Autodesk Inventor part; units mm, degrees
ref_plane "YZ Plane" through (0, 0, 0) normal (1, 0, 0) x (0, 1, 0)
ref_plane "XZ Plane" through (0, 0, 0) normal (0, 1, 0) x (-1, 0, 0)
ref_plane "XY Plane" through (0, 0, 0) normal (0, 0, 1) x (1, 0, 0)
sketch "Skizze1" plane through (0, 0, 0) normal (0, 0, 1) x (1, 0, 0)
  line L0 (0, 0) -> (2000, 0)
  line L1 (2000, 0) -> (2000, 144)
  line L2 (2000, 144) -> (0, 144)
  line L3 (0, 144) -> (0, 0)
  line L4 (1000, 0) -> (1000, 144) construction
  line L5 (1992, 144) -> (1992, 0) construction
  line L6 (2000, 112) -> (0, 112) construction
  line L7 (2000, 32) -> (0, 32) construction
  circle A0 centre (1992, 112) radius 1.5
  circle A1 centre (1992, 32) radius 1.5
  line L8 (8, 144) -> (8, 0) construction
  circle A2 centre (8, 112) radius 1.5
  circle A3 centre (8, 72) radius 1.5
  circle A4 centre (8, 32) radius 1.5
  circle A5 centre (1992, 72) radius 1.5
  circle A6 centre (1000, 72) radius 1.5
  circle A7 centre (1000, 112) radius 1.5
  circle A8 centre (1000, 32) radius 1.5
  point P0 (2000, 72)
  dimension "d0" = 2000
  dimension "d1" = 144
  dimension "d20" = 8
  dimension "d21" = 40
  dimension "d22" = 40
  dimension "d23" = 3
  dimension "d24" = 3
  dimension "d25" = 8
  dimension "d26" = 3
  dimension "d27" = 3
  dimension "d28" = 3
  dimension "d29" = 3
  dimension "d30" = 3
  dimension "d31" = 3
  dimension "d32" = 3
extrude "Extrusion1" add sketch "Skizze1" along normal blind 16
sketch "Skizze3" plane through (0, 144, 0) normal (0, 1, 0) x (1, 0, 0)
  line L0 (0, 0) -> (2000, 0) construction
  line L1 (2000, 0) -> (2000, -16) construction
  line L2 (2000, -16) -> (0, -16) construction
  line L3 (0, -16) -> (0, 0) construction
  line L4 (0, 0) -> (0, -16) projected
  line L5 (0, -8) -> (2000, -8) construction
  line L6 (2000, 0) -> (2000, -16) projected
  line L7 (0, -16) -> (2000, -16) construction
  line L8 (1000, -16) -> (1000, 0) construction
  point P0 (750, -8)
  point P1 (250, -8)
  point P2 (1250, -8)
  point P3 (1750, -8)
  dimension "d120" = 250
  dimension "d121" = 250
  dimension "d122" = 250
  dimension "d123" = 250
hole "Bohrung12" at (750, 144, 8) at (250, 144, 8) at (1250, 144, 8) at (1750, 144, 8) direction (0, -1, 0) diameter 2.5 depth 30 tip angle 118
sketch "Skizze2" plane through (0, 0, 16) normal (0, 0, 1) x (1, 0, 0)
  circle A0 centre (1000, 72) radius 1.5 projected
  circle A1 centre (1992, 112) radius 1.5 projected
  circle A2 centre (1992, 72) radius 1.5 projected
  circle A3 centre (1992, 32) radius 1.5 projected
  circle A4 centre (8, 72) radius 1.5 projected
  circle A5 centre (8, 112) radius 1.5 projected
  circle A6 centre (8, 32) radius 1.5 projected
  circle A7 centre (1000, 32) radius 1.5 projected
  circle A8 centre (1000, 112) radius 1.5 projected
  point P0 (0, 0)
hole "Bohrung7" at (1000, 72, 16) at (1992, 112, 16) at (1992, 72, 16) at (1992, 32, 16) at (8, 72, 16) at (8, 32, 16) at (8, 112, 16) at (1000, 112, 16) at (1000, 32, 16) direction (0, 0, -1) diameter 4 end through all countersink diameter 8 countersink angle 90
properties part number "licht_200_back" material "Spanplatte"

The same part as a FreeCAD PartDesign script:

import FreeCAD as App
import Part
import Sketcher
Q = App.Units.Quantity

doc = App.newDocument("Part")
body = doc.addObject("PartDesign::Body", "Body")

# Sketch on XY plane
sketch1 = body.newObject("Sketcher::SketchObject", "Sketch")
sketch1.AttachmentSupport = (doc.getObject("XY_Plane"), [""])
sketch1.MapMode = "FlatFace"
sketch1.addGeometry(Part.LineSegment(App.Vector(0, 144, 0), App.Vector(0, 0, 0)), False)
sketch1.addGeometry(Part.LineSegment(App.Vector(0, 0, 0), App.Vector(2000, 0, 0)), False)
sketch1.addGeometry(Part.LineSegment(App.Vector(2000, 0, 0), App.Vector(2000, 144, 0)), False)
sketch1.addGeometry(Part.LineSegment(App.Vector(2000, 144, 0), App.Vector(0, 144, 0)), False)
sketch1.addGeometry(Part.Circle(App.Vector(8, 32, 0), App.Vector(0, 0, 1), 1.5), False)
sketch1.addGeometry(Part.Circle(App.Vector(1000, 32, 0), App.Vector(0, 0, 1), 1.5), False)
sketch1.addGeometry(Part.Circle(App.Vector(1992, 32, 0), App.Vector(0, 0, 1), 1.5), False)
sketch1.addGeometry(Part.Circle(App.Vector(8, 72, 0), App.Vector(0, 0, 1), 1.5), False)
sketch1.addGeometry(Part.Circle(App.Vector(8, 112, 0), App.Vector(0, 0, 1), 1.5), False)
sketch1.addGeometry(Part.Circle(App.Vector(1000, 72, 0), App.Vector(0, 0, 1), 1.5), False)
sketch1.addGeometry(Part.Circle(App.Vector(1992, 72, 0), App.Vector(0, 0, 1), 1.5), False)
sketch1.addGeometry(Part.Circle(App.Vector(1000, 112, 0), App.Vector(0, 0, 1), 1.5), False)
sketch1.addGeometry(Part.Circle(App.Vector(1992, 112, 0), App.Vector(0, 0, 1), 1.5), False)
sketch1.addConstraint(Sketcher.Constraint("Coincident", 0, 2, 1, 1))
sketch1.addConstraint(Sketcher.Constraint("Coincident", 1, 2, 2, 1))
sketch1.addConstraint(Sketcher.Constraint("Coincident", 2, 2, 3, 1))
sketch1.addConstraint(Sketcher.Constraint("Coincident", 3, 2, 0, 1))
sketch1.addConstraint(Sketcher.Constraint("Vertical", 0))
sketch1.addConstraint(Sketcher.Constraint("Horizontal", 1))
sketch1.addConstraint(Sketcher.Constraint("Vertical", 2))
sketch1.addConstraint(Sketcher.Constraint("Horizontal", 3))
sketch1.addConstraint(Sketcher.Constraint("Coincident", 0, 2, -1, 1))
sketch1.addConstraint(Sketcher.Constraint("Equal", 4, 5))
sketch1.addConstraint(Sketcher.Constraint("Equal", 5, 6))
sketch1.addConstraint(Sketcher.Constraint("Equal", 6, 7))
sketch1.addConstraint(Sketcher.Constraint("Equal", 7, 8))
sketch1.addConstraint(Sketcher.Constraint("Equal", 8, 9))
sketch1.addConstraint(Sketcher.Constraint("Equal", 9, 10))
sketch1.addConstraint(Sketcher.Constraint("Equal", 10, 11))
sketch1.addConstraint(Sketcher.Constraint("Equal", 11, 12))
sketch1.addConstraint(Sketcher.Constraint("Horizontal", 4, 3, 5, 3))
sketch1.addConstraint(Sketcher.Constraint("Horizontal", 5, 3, 6, 3))
sketch1.addConstraint(Sketcher.Constraint("Horizontal", 7, 3, 9, 3))
sketch1.addConstraint(Sketcher.Constraint("Horizontal", 9, 3, 10, 3))
sketch1.addConstraint(Sketcher.Constraint("Horizontal", 8, 3, 11, 3))
sketch1.addConstraint(Sketcher.Constraint("Horizontal", 11, 3, 12, 3))
sketch1.addConstraint(Sketcher.Constraint("Vertical", 4, 3, 7, 3))
sketch1.addConstraint(Sketcher.Constraint("Vertical", 7, 3, 8, 3))
sketch1.addConstraint(Sketcher.Constraint("Vertical", 5, 3, 9, 3))
sketch1.addConstraint(Sketcher.Constraint("Vertical", 6, 3, 10, 3))
sketch1.addConstraint(Sketcher.Constraint("Vertical", 9, 3, 11, 3))
sketch1.addConstraint(Sketcher.Constraint("Vertical", 10, 3, 12, 3))
sketch1.addConstraint(Sketcher.Constraint("Diameter", 4, Q("3 mm")))
sketch1.addConstraint(Sketcher.Constraint("DistanceX", 1, 1, 1, 2, Q("2000 mm")))
sketch1.addConstraint(Sketcher.Constraint("DistanceY", 0, 2, 0, 1, Q("144 mm")))
sketch1.addConstraint(Sketcher.Constraint("DistanceX", -1, 1, 4, 3, Q("8 mm")))
sketch1.addConstraint(Sketcher.Constraint("DistanceY", 4, 3, 7, 3, Q("40 mm")))
sketch1.addConstraint(Sketcher.Constraint("DistanceY", 7, 3, 8, 3, Q("40 mm")))
sketch1.addConstraint(Sketcher.Constraint("DistanceX", 6, 3, 1, 2, Q("8 mm")))
sketch1.addConstraint(Sketcher.Constraint("DistanceY", -1, 1, 4, 3, Q("32 mm")))
sketch1.addConstraint(Sketcher.Constraint("DistanceX", -1, 1, 5, 3, Q("1000 mm")))
pad1 = body.newObject("PartDesign::Pad", "Pad")
pad1.Profile = sketch1
pad1.Length = 16

# Sketch on XZ plane
sketch2 = body.newObject("Sketcher::SketchObject", "Sketch001")
sketch2.AttachmentSupport = (doc.getObject("XZ_Plane"), [""])
sketch2.MapMode = "FlatFace"
sketch2.AttachmentOffset = App.Placement(App.Vector(0, 0, -144), App.Rotation())
sketch2.addGeometry(Part.Circle(App.Vector(750, 8, 0), App.Vector(0, 0, 1), 1.25), False)
sketch2.addGeometry(Part.Circle(App.Vector(250, 8, 0), App.Vector(0, 0, 1), 1.25), False)
sketch2.addGeometry(Part.Circle(App.Vector(1250, 8, 0), App.Vector(0, 0, 1), 1.25), False)
sketch2.addGeometry(Part.Circle(App.Vector(1750, 8, 0), App.Vector(0, 0, 1), 1.25), False)
sketch2.addConstraint(Sketcher.Constraint("Equal", 0, 1))
sketch2.addConstraint(Sketcher.Constraint("Equal", 1, 2))
sketch2.addConstraint(Sketcher.Constraint("Equal", 2, 3))
sketch2.addConstraint(Sketcher.Constraint("Horizontal", 0, 3, 1, 3))
sketch2.addConstraint(Sketcher.Constraint("Horizontal", 1, 3, 2, 3))
sketch2.addConstraint(Sketcher.Constraint("Horizontal", 2, 3, 3, 3))
sketch2.addConstraint(Sketcher.Constraint("Diameter", 0, Q("2.5 mm")))
sketch2.addConstraint(Sketcher.Constraint("DistanceX", -1, 1, 0, 3, Q("750 mm")))
sketch2.addConstraint(Sketcher.Constraint("DistanceY", -1, 1, 0, 3, Q("8 mm")))
sketch2.addConstraint(Sketcher.Constraint("DistanceX", -1, 1, 1, 3, Q("250 mm")))
sketch2.addConstraint(Sketcher.Constraint("DistanceX", -1, 1, 2, 3, Q("1250 mm")))
sketch2.addConstraint(Sketcher.Constraint("DistanceX", -1, 1, 3, 3, Q("1750 mm")))
doc.recompute()
hole = body.newObject("PartDesign::Hole", "Hole")
hole.Profile = sketch2
hole.ThreadType = "None"
hole.Diameter = 2.5
hole.DepthType = "Dimension"
hole.Depth = 30
hole.DrillPoint = "Angled"
hole.DrillPointAngle = 118
hole.Reversed = True

# Sketch on XY plane
sketch3 = body.newObject("Sketcher::SketchObject", "Sketch002")
sketch3.AttachmentSupport = (doc.getObject("XY_Plane"), [""])
sketch3.MapMode = "FlatFace"
sketch3.AttachmentOffset = App.Placement(App.Vector(0, 0, 16), App.Rotation())
sketch3.addGeometry(Part.Circle(App.Vector(1000, 72, 0), App.Vector(0, 0, 1), 2), False)
sketch3.addGeometry(Part.Circle(App.Vector(1992, 112, 0), App.Vector(0, 0, 1), 2), False)
sketch3.addGeometry(Part.Circle(App.Vector(1992, 72, 0), App.Vector(0, 0, 1), 2), False)
sketch3.addGeometry(Part.Circle(App.Vector(1992, 32, 0), App.Vector(0, 0, 1), 2), False)
sketch3.addGeometry(Part.Circle(App.Vector(8, 72, 0), App.Vector(0, 0, 1), 2), False)
sketch3.addGeometry(Part.Circle(App.Vector(8, 32, 0), App.Vector(0, 0, 1), 2), False)
sketch3.addGeometry(Part.Circle(App.Vector(8, 112, 0), App.Vector(0, 0, 1), 2), False)
sketch3.addGeometry(Part.Circle(App.Vector(1000, 112, 0), App.Vector(0, 0, 1), 2), False)
sketch3.addGeometry(Part.Circle(App.Vector(1000, 32, 0), App.Vector(0, 0, 1), 2), False)
sketch3.addConstraint(Sketcher.Constraint("Equal", 0, 1))
sketch3.addConstraint(Sketcher.Constraint("Equal", 1, 2))
sketch3.addConstraint(Sketcher.Constraint("Equal", 2, 3))
sketch3.addConstraint(Sketcher.Constraint("Equal", 3, 4))
sketch3.addConstraint(Sketcher.Constraint("Equal", 4, 5))
sketch3.addConstraint(Sketcher.Constraint("Equal", 5, 6))
sketch3.addConstraint(Sketcher.Constraint("Equal", 6, 7))
sketch3.addConstraint(Sketcher.Constraint("Equal", 7, 8))
sketch3.addConstraint(Sketcher.Constraint("Horizontal", 0, 3, 2, 3))
sketch3.addConstraint(Sketcher.Constraint("Horizontal", 2, 3, 4, 3))
sketch3.addConstraint(Sketcher.Constraint("Horizontal", 3, 3, 5, 3))
sketch3.addConstraint(Sketcher.Constraint("Horizontal", 1, 3, 6, 3))
sketch3.addConstraint(Sketcher.Constraint("Horizontal", 6, 3, 7, 3))
sketch3.addConstraint(Sketcher.Constraint("Horizontal", 5, 3, 8, 3))
sketch3.addConstraint(Sketcher.Constraint("Vertical", 1, 3, 2, 3))
sketch3.addConstraint(Sketcher.Constraint("Vertical", 2, 3, 3, 3))
sketch3.addConstraint(Sketcher.Constraint("Vertical", 4, 3, 5, 3))
sketch3.addConstraint(Sketcher.Constraint("Vertical", 5, 3, 6, 3))
sketch3.addConstraint(Sketcher.Constraint("Vertical", 0, 3, 7, 3))
sketch3.addConstraint(Sketcher.Constraint("Vertical", 7, 3, 8, 3))
sketch3.addConstraint(Sketcher.Constraint("Diameter", 0, Q("4 mm")))
sketch3.addConstraint(Sketcher.Constraint("DistanceX", -1, 1, 0, 3, Q("1000 mm")))
sketch3.addConstraint(Sketcher.Constraint("DistanceY", -1, 1, 0, 3, Q("72 mm")))
sketch3.addConstraint(Sketcher.Constraint("DistanceX", -1, 1, 1, 3, Q("1992 mm")))
sketch3.addConstraint(Sketcher.Constraint("DistanceY", -1, 1, 1, 3, Q("112 mm")))
sketch3.addConstraint(Sketcher.Constraint("DistanceY", -1, 1, 3, 3, Q("32 mm")))
sketch3.addConstraint(Sketcher.Constraint("DistanceX", -1, 1, 4, 3, Q("8 mm")))
doc.recompute()
hole2 = body.newObject("PartDesign::Hole", "Hole001")
hole2.Profile = sketch3
hole2.ThreadType = "None"
hole2.Diameter = 4
hole2.DepthType = "ThroughAll"
hole2.HoleCutType = "Countersink"
hole2.HoleCutDiameter = 8
hole2.HoleCutCountersinkAngle = 90

doc.recompute()
